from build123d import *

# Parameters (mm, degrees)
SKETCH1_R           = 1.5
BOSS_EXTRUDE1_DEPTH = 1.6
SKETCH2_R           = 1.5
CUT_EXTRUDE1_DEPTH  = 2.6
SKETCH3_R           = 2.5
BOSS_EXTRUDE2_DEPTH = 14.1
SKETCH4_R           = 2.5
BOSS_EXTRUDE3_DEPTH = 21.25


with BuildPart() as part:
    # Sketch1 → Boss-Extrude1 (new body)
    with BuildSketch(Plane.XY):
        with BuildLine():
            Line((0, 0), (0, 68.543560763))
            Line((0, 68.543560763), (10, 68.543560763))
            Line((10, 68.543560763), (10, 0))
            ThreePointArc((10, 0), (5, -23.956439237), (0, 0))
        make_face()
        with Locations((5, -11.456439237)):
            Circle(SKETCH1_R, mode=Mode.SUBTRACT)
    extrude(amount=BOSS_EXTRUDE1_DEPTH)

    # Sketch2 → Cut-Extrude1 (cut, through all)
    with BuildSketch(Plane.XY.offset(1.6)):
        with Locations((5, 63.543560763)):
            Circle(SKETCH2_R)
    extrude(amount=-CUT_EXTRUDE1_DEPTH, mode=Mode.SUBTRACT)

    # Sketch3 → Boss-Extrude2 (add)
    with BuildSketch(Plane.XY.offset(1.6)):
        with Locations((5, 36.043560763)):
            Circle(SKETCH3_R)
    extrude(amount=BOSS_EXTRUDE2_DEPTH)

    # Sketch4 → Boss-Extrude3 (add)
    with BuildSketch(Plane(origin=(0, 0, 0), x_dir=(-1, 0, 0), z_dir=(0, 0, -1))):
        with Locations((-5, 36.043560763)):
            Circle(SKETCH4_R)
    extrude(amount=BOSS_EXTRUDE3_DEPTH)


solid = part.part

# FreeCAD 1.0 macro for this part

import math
import FreeCAD as App
import Part
import Sketcher

V = App.Vector

doc = App.newDocument("Part")
body = doc.addObject("PartDesign::Body", "Body")

# Sketch on XY plane
sketch1 = doc.addObject("Sketcher::SketchObject", "Sketch")
body.addObject(sketch1)
sketch1.AttachmentSupport = (doc.XY_Plane, [""])
sketch1.MapMode = "FlatFace"
sketch1.addGeometry(Part.LineSegment(V(0, 68.543561, 0), V(0, 0, 0)), False)
sketch1.addGeometry(Part.ArcOfCircle(Part.Circle(V(5, -11.456439, 0), V(0, 0, 1), 12.5), math.radians(113.578178), math.radians(426.421822)), False)
sketch1.addGeometry(Part.LineSegment(V(10, 0, 0), V(10, 68.543561, 0)), False)
sketch1.addGeometry(Part.LineSegment(V(10, 68.543561, 0), V(0, 68.543561, 0)), False)
sketch1.addGeometry(Part.Circle(V(5, -11.456439, 0), V(0, 0, 1), 1.5), False)
sketch1.addConstraint(Sketcher.Constraint("Coincident", 0, 2, 1, 1))
sketch1.addConstraint(Sketcher.Constraint("Coincident", 1, 2, 2, 1))
sketch1.addConstraint(Sketcher.Constraint("Coincident", 2, 2, 3, 1))
sketch1.addConstraint(Sketcher.Constraint("Coincident", 3, 2, 0, 1))
sketch1.addConstraint(Sketcher.Constraint("Vertical", 0))
sketch1.addConstraint(Sketcher.Constraint("Vertical", 2))
sketch1.addConstraint(Sketcher.Constraint("Horizontal", 3))
sketch1.addConstraint(Sketcher.Constraint("Coincident", 0, 2, -1, 1))
sketch1.addConstraint(Sketcher.Constraint("Coincident", 4, 3, 1, 3))
sketch1.addConstraint(Sketcher.Constraint("PointOnObject", 1, 2, -1))
sketch1.addConstraint(Sketcher.Constraint("Diameter", 4, 3.0))
sketch1.addConstraint(Sketcher.Constraint("Radius", 1, 12.5))
sketch1.addConstraint(Sketcher.Constraint("DistanceX", 3, 2, 3, 1, 10.0))
sketch1.addConstraint(Sketcher.Constraint("DistanceY", 1, 3, 2, 2, 80.0))
pad1 = doc.addObject("PartDesign::Pad", "Pad")
body.addObject(pad1)
pad1.Profile = sketch1
pad1.Length = 1.6

# Sketch on XY plane
sketch2 = doc.addObject("Sketcher::SketchObject", "Sketch001")
body.addObject(sketch2)
sketch2.AttachmentSupport = (doc.XY_Plane, [""])
sketch2.MapMode = "FlatFace"
sketch2.AttachmentOffset = App.Placement(V(0, 0, 1.6), App.Rotation())
sketch2.addGeometry(Part.Circle(V(5, 63.543561, 0), V(0, 0, 1), 1.5), False)
sketch2.addConstraint(Sketcher.Constraint("Diameter", 0, 3.0))
sketch2.addConstraint(Sketcher.Constraint("DistanceX", -1, 1, 0, 3, 5.0))
sketch2.addConstraint(Sketcher.Constraint("DistanceY", -1, 1, 0, 3, 63.543561))
pocket1 = doc.addObject("PartDesign::Pocket", "Pocket")
body.addObject(pocket1)
pocket1.Profile = sketch2
pocket1.Type = "ThroughAll"

# Sketch on XY plane
sketch3 = doc.addObject("Sketcher::SketchObject", "Sketch002")
body.addObject(sketch3)
sketch3.AttachmentSupport = (doc.XY_Plane, [""])
sketch3.MapMode = "FlatFace"
sketch3.AttachmentOffset = App.Placement(V(0, 0, 1.6), App.Rotation())
sketch3.addGeometry(Part.Circle(V(5, 36.043561, 0), V(0, 0, 1), 2.5), False)
sketch3.addConstraint(Sketcher.Constraint("Diameter", 0, 5.0))
sketch3.addConstraint(Sketcher.Constraint("DistanceX", -1, 1, 0, 3, 5.0))
sketch3.addConstraint(Sketcher.Constraint("DistanceY", -1, 1, 0, 3, 36.043561))
pad2 = doc.addObject("PartDesign::Pad", "Pad001")
body.addObject(pad2)
pad2.Profile = sketch3
pad2.Length = 14.1

# Sketch on XY plane
sketch4 = doc.addObject("Sketcher::SketchObject", "Sketch003")
body.addObject(sketch4)
sketch4.AttachmentSupport = (doc.XY_Plane, [""])
sketch4.MapMode = "FlatFace"
sketch4.addGeometry(Part.Circle(V(5, 36.043561, 0), V(0, 0, 1), 2.5), False)
sketch4.addConstraint(Sketcher.Constraint("Diameter", 0, 5.0))
sketch4.addConstraint(Sketcher.Constraint("DistanceX", -1, 1, 0, 3, 5.0))
sketch4.addConstraint(Sketcher.Constraint("DistanceY", -1, 1, 0, 3, 36.043561))
pad3 = doc.addObject("PartDesign::Pad", "Pad002")
body.addObject(pad3)
pad3.Profile = sketch4
pad3.Length = 21.25
pad3.Reversed = True

doc.recompute()
